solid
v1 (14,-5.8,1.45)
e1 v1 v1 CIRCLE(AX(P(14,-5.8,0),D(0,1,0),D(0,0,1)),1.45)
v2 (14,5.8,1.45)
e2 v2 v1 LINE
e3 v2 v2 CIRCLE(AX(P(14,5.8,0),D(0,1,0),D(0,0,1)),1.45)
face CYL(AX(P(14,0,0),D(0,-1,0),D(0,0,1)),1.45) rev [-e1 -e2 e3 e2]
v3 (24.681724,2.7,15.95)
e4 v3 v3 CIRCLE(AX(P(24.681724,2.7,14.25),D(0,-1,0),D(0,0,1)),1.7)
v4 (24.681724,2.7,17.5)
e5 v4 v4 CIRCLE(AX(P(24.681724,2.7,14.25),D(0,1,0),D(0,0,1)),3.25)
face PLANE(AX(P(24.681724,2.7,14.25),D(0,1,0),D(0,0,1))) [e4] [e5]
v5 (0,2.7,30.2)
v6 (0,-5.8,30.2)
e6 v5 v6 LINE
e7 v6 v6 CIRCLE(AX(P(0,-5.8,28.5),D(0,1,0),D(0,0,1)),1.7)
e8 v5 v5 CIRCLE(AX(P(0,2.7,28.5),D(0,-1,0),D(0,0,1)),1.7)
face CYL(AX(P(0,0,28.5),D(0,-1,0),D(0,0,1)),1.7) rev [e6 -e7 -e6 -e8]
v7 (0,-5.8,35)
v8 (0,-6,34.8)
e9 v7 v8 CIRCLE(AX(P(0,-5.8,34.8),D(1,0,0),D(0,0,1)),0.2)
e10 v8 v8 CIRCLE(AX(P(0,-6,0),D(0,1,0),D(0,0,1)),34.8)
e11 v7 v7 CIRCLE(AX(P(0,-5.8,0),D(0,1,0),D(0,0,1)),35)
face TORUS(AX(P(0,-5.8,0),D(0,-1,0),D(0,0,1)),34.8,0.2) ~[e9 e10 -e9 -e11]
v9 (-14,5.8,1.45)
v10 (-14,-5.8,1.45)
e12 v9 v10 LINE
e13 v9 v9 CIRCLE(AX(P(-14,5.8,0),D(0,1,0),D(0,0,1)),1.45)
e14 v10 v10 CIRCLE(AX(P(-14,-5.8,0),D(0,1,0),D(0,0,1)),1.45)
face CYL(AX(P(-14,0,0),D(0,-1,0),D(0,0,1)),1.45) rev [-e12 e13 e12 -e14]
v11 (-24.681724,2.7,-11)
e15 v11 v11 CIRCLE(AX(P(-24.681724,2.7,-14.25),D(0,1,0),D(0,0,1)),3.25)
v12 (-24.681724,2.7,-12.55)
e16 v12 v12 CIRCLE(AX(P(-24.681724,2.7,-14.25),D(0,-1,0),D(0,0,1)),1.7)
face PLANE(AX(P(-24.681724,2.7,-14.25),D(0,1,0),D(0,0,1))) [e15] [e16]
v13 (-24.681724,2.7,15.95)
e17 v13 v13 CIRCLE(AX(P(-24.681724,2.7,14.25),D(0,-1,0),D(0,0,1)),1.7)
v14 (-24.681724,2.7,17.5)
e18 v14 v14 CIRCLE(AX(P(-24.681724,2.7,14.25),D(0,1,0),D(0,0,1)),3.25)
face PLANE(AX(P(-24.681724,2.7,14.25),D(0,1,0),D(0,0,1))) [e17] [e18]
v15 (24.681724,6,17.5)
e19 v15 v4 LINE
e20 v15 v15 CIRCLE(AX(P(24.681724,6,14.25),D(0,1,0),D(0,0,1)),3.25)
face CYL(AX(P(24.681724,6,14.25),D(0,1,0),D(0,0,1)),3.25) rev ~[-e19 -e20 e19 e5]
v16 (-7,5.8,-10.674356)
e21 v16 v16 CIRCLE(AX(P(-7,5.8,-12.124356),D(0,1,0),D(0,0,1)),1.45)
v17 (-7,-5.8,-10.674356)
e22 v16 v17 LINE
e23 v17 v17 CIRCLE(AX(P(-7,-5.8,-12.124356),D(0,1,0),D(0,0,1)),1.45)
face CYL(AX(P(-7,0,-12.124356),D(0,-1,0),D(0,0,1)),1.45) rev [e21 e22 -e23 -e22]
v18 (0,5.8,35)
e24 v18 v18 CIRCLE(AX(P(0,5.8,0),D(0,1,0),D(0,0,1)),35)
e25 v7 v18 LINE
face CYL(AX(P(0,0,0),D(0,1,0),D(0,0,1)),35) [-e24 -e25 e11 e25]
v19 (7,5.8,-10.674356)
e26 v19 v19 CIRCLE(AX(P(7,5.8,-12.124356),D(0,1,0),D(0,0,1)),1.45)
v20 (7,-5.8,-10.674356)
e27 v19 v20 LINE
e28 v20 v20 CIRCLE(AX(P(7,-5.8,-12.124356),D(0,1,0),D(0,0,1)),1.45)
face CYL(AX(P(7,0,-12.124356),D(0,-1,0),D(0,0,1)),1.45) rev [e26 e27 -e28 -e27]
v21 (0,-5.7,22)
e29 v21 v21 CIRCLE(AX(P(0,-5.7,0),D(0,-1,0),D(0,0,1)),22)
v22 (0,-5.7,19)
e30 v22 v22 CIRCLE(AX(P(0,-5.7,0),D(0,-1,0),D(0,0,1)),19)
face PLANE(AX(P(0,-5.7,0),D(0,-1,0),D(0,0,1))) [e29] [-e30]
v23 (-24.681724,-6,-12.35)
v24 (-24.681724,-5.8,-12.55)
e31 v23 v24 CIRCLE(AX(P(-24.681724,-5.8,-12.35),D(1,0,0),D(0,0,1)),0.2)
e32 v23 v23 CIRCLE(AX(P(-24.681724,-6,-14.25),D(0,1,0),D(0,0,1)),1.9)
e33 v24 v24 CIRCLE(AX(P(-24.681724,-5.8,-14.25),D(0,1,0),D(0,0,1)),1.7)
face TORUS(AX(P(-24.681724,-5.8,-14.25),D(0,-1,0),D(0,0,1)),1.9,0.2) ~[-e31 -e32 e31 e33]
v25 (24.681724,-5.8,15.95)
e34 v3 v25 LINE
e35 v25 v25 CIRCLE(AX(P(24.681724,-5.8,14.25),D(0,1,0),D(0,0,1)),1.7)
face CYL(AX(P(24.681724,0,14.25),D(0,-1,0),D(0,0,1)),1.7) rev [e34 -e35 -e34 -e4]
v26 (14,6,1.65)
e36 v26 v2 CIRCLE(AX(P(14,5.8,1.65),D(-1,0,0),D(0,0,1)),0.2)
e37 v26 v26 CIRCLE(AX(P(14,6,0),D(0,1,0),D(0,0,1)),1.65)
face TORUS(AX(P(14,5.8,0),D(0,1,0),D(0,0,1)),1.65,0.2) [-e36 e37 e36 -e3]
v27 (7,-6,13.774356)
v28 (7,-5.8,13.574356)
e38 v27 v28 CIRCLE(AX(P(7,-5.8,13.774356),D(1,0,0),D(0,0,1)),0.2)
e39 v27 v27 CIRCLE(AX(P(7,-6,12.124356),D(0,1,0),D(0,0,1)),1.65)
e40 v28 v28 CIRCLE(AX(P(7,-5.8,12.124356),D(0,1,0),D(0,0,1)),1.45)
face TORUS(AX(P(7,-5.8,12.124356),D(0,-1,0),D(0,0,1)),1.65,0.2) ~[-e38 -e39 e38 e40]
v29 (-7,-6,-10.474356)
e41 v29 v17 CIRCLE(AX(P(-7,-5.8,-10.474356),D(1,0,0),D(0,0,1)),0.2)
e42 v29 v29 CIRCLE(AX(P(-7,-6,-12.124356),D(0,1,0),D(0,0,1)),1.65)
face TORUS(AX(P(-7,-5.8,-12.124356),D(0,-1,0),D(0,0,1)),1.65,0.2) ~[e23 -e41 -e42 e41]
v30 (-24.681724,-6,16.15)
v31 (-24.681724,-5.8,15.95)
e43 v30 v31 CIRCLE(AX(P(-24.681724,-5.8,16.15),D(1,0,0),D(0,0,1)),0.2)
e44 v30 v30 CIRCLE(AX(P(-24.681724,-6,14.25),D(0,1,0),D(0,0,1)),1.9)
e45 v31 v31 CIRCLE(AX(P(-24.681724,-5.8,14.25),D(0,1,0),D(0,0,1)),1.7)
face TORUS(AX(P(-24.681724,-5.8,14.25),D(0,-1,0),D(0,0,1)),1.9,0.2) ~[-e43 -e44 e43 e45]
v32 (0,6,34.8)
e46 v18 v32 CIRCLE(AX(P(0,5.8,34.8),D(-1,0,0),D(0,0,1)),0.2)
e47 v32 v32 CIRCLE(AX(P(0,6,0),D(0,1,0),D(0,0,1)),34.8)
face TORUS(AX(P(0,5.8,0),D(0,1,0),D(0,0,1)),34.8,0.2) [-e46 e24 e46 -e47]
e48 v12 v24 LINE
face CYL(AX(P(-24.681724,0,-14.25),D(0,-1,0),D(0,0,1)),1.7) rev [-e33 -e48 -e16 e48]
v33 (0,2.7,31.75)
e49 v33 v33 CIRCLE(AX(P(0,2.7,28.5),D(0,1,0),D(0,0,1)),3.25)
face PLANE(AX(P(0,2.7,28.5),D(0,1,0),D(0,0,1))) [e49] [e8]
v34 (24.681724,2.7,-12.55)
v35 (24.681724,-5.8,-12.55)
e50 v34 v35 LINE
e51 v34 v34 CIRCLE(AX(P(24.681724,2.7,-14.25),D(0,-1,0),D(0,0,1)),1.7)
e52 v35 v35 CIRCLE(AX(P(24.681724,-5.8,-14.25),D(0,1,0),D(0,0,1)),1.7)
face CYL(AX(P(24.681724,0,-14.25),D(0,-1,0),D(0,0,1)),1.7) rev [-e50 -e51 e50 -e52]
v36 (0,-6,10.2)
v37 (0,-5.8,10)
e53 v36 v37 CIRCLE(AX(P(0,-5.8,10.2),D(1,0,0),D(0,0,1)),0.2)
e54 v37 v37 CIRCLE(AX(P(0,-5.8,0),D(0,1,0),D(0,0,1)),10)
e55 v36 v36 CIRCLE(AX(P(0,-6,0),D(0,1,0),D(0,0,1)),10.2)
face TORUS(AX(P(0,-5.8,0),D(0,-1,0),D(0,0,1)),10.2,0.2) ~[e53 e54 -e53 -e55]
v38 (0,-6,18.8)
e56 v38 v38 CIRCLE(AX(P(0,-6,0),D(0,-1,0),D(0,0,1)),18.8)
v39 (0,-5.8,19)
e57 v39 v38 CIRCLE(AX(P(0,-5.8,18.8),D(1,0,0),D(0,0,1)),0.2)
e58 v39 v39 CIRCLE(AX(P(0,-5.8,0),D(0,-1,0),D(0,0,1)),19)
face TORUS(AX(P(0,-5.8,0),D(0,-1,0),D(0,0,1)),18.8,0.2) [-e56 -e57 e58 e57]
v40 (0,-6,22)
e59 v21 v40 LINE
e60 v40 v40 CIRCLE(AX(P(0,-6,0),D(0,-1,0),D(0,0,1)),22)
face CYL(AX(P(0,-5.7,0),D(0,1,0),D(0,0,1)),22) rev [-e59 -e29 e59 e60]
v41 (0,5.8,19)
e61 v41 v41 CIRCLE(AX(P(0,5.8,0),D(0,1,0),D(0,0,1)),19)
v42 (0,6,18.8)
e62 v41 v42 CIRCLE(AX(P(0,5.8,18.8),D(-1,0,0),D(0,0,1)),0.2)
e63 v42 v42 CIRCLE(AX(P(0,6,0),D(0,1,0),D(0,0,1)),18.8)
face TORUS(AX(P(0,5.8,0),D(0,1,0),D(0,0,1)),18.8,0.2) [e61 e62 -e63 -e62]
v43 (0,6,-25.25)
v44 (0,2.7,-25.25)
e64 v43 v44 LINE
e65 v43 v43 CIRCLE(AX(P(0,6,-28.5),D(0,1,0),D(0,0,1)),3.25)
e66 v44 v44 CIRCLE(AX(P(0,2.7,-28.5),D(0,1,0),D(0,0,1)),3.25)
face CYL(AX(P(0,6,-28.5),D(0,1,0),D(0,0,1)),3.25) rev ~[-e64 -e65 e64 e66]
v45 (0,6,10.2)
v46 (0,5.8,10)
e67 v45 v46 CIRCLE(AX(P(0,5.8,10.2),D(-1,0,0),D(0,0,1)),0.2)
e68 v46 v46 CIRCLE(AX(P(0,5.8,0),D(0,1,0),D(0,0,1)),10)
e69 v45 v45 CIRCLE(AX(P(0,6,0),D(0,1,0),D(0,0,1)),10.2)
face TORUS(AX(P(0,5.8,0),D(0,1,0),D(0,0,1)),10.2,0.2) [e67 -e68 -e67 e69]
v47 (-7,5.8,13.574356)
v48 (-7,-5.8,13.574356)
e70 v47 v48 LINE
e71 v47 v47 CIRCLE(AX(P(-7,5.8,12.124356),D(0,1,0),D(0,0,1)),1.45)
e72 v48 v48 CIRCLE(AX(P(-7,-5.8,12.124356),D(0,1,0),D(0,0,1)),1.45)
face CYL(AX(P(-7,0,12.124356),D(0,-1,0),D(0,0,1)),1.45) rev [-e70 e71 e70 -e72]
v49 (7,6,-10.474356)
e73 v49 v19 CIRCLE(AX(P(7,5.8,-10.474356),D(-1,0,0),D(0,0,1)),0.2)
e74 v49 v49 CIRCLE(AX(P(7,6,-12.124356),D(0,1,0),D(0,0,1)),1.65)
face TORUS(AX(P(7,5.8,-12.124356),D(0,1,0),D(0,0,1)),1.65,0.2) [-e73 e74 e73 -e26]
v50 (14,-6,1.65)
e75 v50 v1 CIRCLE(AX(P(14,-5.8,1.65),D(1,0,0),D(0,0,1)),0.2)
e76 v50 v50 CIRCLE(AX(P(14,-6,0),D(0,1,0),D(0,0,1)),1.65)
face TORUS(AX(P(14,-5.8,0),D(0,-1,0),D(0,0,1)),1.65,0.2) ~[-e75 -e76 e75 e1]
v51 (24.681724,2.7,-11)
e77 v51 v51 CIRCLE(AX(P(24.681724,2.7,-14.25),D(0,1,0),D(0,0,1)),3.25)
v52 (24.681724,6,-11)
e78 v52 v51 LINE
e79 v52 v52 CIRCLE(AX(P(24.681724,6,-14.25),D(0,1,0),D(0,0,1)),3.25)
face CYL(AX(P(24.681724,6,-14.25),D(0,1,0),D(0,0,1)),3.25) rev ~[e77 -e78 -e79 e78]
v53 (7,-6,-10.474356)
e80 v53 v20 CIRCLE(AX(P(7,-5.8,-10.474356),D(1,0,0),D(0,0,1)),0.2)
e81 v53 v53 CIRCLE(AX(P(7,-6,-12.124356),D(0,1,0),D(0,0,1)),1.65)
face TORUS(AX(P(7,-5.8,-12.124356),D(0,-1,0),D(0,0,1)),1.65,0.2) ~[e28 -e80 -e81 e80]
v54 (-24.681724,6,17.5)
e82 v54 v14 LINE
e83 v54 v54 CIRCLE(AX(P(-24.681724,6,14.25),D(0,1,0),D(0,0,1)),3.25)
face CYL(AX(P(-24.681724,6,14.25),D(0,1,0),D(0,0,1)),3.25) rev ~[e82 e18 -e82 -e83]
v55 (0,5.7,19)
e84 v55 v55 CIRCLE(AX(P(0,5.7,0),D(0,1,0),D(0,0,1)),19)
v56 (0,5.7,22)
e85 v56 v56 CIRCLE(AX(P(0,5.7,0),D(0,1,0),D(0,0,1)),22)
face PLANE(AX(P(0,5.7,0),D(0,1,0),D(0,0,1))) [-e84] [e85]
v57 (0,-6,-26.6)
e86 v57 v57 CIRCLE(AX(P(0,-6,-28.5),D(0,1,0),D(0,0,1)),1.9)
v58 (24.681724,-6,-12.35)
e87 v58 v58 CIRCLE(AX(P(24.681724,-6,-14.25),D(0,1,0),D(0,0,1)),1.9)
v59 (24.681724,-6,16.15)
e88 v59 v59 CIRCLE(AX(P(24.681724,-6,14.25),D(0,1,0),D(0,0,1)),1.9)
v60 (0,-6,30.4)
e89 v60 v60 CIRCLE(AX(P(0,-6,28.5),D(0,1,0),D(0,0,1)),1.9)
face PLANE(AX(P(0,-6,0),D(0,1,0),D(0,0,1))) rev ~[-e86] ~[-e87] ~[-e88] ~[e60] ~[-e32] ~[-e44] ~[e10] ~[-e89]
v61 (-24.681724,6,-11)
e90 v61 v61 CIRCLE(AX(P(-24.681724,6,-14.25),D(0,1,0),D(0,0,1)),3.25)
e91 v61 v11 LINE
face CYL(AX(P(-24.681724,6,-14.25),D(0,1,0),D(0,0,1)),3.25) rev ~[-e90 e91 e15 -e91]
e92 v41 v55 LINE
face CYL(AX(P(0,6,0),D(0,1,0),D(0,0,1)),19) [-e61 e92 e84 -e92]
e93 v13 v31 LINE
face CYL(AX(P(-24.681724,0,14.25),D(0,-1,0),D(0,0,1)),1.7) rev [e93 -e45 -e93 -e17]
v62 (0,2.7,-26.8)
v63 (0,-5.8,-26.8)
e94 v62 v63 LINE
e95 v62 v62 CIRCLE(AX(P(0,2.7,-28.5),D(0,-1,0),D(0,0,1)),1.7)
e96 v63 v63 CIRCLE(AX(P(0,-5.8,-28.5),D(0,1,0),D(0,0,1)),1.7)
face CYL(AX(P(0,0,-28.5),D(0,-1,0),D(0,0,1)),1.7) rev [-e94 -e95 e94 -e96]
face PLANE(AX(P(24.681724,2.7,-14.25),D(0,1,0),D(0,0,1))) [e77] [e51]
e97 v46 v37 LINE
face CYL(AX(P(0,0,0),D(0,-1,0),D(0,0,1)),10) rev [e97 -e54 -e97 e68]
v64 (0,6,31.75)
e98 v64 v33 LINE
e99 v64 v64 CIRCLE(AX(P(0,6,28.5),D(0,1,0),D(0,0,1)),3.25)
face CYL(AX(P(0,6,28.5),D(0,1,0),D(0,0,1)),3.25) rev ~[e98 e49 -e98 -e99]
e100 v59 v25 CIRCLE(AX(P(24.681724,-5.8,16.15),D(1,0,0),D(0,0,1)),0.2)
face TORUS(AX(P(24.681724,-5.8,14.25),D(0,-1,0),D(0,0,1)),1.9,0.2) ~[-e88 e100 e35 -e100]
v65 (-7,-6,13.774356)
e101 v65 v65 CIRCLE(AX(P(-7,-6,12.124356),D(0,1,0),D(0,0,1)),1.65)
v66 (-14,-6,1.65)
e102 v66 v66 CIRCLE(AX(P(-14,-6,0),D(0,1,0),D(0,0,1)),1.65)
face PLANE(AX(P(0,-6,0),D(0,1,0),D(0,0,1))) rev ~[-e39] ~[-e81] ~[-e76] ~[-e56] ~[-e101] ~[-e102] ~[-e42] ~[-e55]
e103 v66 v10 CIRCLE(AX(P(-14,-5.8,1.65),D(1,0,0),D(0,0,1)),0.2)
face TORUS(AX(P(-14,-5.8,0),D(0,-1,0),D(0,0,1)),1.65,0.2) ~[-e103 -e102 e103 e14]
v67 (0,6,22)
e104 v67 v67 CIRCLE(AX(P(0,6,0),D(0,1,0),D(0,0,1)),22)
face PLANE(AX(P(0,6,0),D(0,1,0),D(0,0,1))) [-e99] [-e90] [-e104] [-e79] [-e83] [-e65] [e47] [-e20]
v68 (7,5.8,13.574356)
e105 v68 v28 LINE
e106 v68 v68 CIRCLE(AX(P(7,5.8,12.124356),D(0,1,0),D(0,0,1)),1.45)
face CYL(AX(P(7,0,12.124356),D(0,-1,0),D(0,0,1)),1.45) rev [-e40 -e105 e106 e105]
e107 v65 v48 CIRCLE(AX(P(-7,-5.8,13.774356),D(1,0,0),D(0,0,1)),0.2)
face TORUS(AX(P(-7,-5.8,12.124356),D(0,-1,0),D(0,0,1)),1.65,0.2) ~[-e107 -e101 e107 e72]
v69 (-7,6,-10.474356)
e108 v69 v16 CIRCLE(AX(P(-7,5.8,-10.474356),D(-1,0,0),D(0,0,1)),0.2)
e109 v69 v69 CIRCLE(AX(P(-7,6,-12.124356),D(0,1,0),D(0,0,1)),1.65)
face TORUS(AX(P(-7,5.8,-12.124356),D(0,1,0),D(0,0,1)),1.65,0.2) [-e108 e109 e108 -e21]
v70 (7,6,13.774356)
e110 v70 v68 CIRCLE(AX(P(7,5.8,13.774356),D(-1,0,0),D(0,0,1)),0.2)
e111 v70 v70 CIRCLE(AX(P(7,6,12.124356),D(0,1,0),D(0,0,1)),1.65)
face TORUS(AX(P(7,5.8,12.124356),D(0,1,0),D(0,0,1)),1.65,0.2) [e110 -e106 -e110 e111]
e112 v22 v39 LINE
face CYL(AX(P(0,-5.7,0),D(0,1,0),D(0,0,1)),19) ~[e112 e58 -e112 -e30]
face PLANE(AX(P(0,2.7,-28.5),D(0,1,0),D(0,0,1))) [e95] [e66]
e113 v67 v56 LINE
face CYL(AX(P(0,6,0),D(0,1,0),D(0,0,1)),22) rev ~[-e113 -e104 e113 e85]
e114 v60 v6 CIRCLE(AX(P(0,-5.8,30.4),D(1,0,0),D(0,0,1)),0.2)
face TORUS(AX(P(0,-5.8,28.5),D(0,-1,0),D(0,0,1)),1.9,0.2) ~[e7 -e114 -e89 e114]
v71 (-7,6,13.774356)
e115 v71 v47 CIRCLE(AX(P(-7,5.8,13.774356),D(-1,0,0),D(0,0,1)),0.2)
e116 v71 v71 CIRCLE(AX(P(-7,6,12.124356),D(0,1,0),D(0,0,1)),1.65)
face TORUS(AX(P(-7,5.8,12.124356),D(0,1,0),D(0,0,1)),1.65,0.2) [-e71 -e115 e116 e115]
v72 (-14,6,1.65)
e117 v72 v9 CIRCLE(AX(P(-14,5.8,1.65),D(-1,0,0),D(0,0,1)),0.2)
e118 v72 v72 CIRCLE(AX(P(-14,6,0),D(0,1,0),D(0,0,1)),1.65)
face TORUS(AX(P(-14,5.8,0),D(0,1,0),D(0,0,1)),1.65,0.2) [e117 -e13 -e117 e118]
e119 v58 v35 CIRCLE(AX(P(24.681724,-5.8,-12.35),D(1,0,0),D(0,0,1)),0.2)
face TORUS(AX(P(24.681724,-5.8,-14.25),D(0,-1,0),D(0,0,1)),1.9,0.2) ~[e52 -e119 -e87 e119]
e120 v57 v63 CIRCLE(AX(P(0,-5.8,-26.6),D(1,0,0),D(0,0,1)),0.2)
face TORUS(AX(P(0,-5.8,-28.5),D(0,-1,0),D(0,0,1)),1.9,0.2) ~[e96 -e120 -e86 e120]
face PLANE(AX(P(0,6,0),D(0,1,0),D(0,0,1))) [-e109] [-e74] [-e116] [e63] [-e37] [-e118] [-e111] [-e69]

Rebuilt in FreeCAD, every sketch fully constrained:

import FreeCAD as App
import Part
import Sketcher
from FreeCAD import Vector


def edges_at(feature, points):
    """Names of the edges that pass closest to the given points."""
    edges = feature.Shape.Edges
    near = lambda p: min(range(len(edges)), key=lambda i: edges[i].distToShape(Part.Vertex(*p))[0])
    return sorted({f"Edge{near(p) + 1}" for p in points})

doc = App.newDocument("Part")
body = doc.addObject("PartDesign::Body", "Body")

# Sketch on XZ plane
sketch1 = body.newObject("Sketcher::SketchObject", "Sketch")
sketch1.AttachmentSupport = (doc.getObject("XZ_Plane"), [""])
sketch1.MapMode = "FlatFace"
sketch1.addGeometry(Part.Circle(Vector(0, 0, 0), Vector(0, 0, 1), 35), False)
sketch1.addGeometry(Part.Circle(Vector(-24.7, -14.2, 0), Vector(0, 0, 1), 1.7), False)
sketch1.addGeometry(Part.Circle(Vector(0, -28.5, 0), Vector(0, 0, 1), 1.7), False)
sketch1.addGeometry(Part.Circle(Vector(-7, -12.1, 0), Vector(0, 0, 1), 1.4), False)
sketch1.addGeometry(Part.Circle(Vector(-24.7, 14.2, 0), Vector(0, 0, 1), 1.7), False)
sketch1.addGeometry(Part.Circle(Vector(-14, 0, 0), Vector(0, 0, 1), 1.4), False)
sketch1.addGeometry(Part.Circle(Vector(-7, 12.1, 0), Vector(0, 0, 1), 1.4), False)
sketch1.addGeometry(Part.Circle(Vector(7, -12.1, 0), Vector(0, 0, 1), 1.4), False)
sketch1.addGeometry(Part.Circle(Vector(14, 0, 0), Vector(0, 0, 1), 1.4), False)
sketch1.addGeometry(Part.Circle(Vector(24.7, -14.2, 0), Vector(0, 0, 1), 1.7), False)
sketch1.addGeometry(Part.Circle(Vector(0, 0, 0), Vector(0, 0, 1), 10), False)
sketch1.addGeometry(Part.Circle(Vector(7, 12.1, 0), Vector(0, 0, 1), 1.4), False)
sketch1.addGeometry(Part.Circle(Vector(0, 28.5, 0), Vector(0, 0, 1), 1.7), False)
sketch1.addGeometry(Part.Circle(Vector(24.7, 14.2, 0), Vector(0, 0, 1), 1.7), False)
sketch1.addConstraint(Sketcher.Constraint("Coincident", 0, 3, -1, 1))
sketch1.addConstraint(Sketcher.Constraint("Coincident", 10, 3, -1, 1))
sketch1.addConstraint(Sketcher.Constraint("Equal", 1, 2))
sketch1.addConstraint(Sketcher.Constraint("Equal", 2, 4))
sketch1.addConstraint(Sketcher.Constraint("Equal", 3, 5))
sketch1.addConstraint(Sketcher.Constraint("Equal", 5, 6))
sketch1.addConstraint(Sketcher.Constraint("Equal", 6, 7))
sketch1.addConstraint(Sketcher.Constraint("Equal", 7, 8))
sketch1.addConstraint(Sketcher.Constraint("Equal", 4, 9))
sketch1.addConstraint(Sketcher.Constraint("Equal", 8, 11))
sketch1.addConstraint(Sketcher.Constraint("Equal", 9, 12))
sketch1.addConstraint(Sketcher.Constraint("Equal", 12, 13))
sketch1.addConstraint(Sketcher.Constraint("Symmetric", 6, 3, 7, 3, -1, 1))
sketch1.addConstraint(Sketcher.Constraint("Symmetric", 5, 3, 8, 3, -1, 1))
sketch1.addConstraint(Sketcher.Constraint("Symmetric", 4, 3, 9, 3, -1, 1))
sketch1.addConstraint(Sketcher.Constraint("Symmetric", 3, 3, 11, 3, -1, 1))
sketch1.addConstraint(Sketcher.Constraint("Symmetric", 2, 3, 12, 3, -1, 1))
sketch1.addConstraint(Sketcher.Constraint("Symmetric", 1, 3, 13, 3, -1, 1))
sketch1.addConstraint(Sketcher.Constraint("Symmetric", 3, 3, 7, 3, -2))
sketch1.addConstraint(Sketcher.Constraint("Symmetric", 1, 3, 9, 3, -2))
sketch1.addConstraint(Sketcher.Constraint("PointOnObject", 2, 3, -2))
sketch1.addConstraint(Sketcher.Constraint("PointOnObject", 5, 3, -1))
sketch1.addConstraint(Sketcher.Constraint("Diameter", 0, 70.0))
sketch1.addConstraint(Sketcher.Constraint("Diameter", 10, 20.0))
sketch1.addConstraint(Sketcher.Constraint("Diameter", 1, 3.4))
sketch1.addConstraint(Sketcher.Constraint("Diameter", 3, 2.9))
sketch1.addConstraint(Sketcher.Constraint("DistanceX", 3, 3, -1, 1, 7.0))
sketch1.addConstraint(Sketcher.Constraint("DistanceX", 5, 3, -1, 1, 14.0))
sketch1.addConstraint(Sketcher.Constraint("DistanceY", 2, 3, -1, 1, 28.5))
sketch1.addConstraint(Sketcher.Constraint("DistanceY", 1, 3, 4, 3, 28.5))
sketch1.addConstraint(Sketcher.Constraint("DistanceY", 3, 3, 6, 3, 24.248711))
sketch1.addConstraint(Sketcher.Constraint("DistanceX", 1, 3, -1, 1, 24.681724))
pad1 = body.newObject("PartDesign::Pad", "Pad")
pad1.Profile = sketch1
pad1.Length = 12
pad1.Midplane = True

# Sketch on XZ plane
sketch2 = body.newObject("Sketcher::SketchObject", "Sketch001")
sketch2.AttachmentSupport = (doc.getObject("XZ_Plane"), [""])
sketch2.MapMode = "FlatFace"
sketch2.AttachmentOffset = App.Placement(Vector(0, 0, -6), App.Rotation())
sketch2.addGeometry(Part.Circle(Vector(0, 0, 0), Vector(0, 0, 1), 22), False)
sketch2.addGeometry(Part.Circle(Vector(0, 0, 0), Vector(0, 0, 1), 19), False)
sketch2.addConstraint(Sketcher.Constraint("Coincident", 0, 3, -1, 1))
sketch2.addConstraint(Sketcher.Constraint("Coincident", 1, 3, -1, 1))
sketch2.addConstraint(Sketcher.Constraint("Diameter", 0, 44.0))
sketch2.addConstraint(Sketcher.Constraint("Diameter", 1, 38.0))
pocket1 = body.newObject("PartDesign::Pocket", "Pocket")
pocket1.Profile = sketch2
pocket1.Length = 0.3
pocket1.Reversed = True

# Sketch on XZ plane
sketch3 = body.newObject("Sketcher::SketchObject", "Sketch002")
sketch3.AttachmentSupport = (doc.getObject("XZ_Plane"), [""])
sketch3.MapMode = "FlatFace"
sketch3.AttachmentOffset = App.Placement(Vector(0, 0, 5.7), App.Rotation())
sketch3.addGeometry(Part.Circle(Vector(0, 0, 0), Vector(0, 0, 1), 22), False)
sketch3.addGeometry(Part.Circle(Vector(0, 0, 0), Vector(0, 0, 1), 19), False)
sketch3.addConstraint(Sketcher.Constraint("Coincident", 0, 3, -1, 1))
sketch3.addConstraint(Sketcher.Constraint("Coincident", 1, 3, -1, 1))
sketch3.addConstraint(Sketcher.Constraint("Diameter", 0, 44.0))
sketch3.addConstraint(Sketcher.Constraint("Diameter", 1, 38.0))
pocket2 = body.newObject("PartDesign::Pocket", "Pocket001")
pocket2.Profile = sketch3
pocket2.Length = 0.3
pocket2.Reversed = True
doc.recompute()

fillet = body.newObject("PartDesign::Fillet", "Fillet")
fillet.Base = (pocket2, edges_at(pocket2, [
    (7, -6, -13.574),
    (7, 6, -13.574),
    (14, -6, -1.45),
    (14, 6, -1.45),
    (0, -6, -35),
    (7, -6, 10.674),
    (7, 6, 10.674),
    (-7, -6, 10.674),
    (-7, 6, 10.674),
    (-14, -6, -1.45),
    (-14, 6, -1.45),
    (24.682, -6, -15.95),
    (0, -6, -30.2),
    (24.682, -6, 12.55),
    (0, -6, 26.8),
    (-24.682, -6, 12.55),
    (0, 6, -35),
    (-24.682, -6, -15.95),
    (0, -6, -10),
    (0, 6, -10),
    (0, 6, -19),
    (0, -6, -19),
    (-7, -6, -13.574),
    (-7, 6, -13.574),
]))
fillet.Radius = 0.2

# Sketch on XZ plane
sketch4 = body.newObject("Sketcher::SketchObject", "Sketch003")
sketch4.AttachmentSupport = (doc.getObject("XZ_Plane"), [""])
sketch4.MapMode = "FlatFace"
sketch4.AttachmentOffset = App.Placement(Vector(0, 0, -6), App.Rotation())
sketch4.addGeometry(Part.Circle(Vector(0, -28.5, 0), Vector(0, 0, 1), 3.2), False)
sketch4.addGeometry(Part.Circle(Vector(24.7, -14.2, 0), Vector(0, 0, 1), 3.2), False)
sketch4.addGeometry(Part.Circle(Vector(24.7, 14.2, 0), Vector(0, 0, 1), 3.2), False)
sketch4.addGeometry(Part.Circle(Vector(0, 28.5, 0), Vector(0, 0, 1), 3.2), False)
sketch4.addGeometry(Part.Circle(Vector(-24.7, 14.2, 0), Vector(0, 0, 1), 3.2), False)
sketch4.addGeometry(Part.Circle(Vector(-24.7, -14.2, 0), Vector(0, 0, 1), 3.2), False)
sketch4.addConstraint(Sketcher.Constraint("Equal", 0, 1))
sketch4.addConstraint(Sketcher.Constraint("Equal", 1, 2))
sketch4.addConstraint(Sketcher.Constraint("Equal", 2, 3))
sketch4.addConstraint(Sketcher.Constraint("Equal", 3, 4))
sketch4.addConstraint(Sketcher.Constraint("Equal", 4, 5))
sketch4.addConstraint(Sketcher.Constraint("Symmetric", 0, 3, 3, 3, -1, 1))
sketch4.addConstraint(Sketcher.Constraint("Symmetric", 1, 3, 4, 3, -1, 1))
sketch4.addConstraint(Sketcher.Constraint("Symmetric", 2, 3, 5, 3, -1, 1))
sketch4.addConstraint(Sketcher.Constraint("Symmetric", 2, 3, 4, 3, -2))
sketch4.addConstraint(Sketcher.Constraint("PointOnObject", 0, 3, -2))
sketch4.addConstraint(Sketcher.Constraint("Diameter", 0, 6.5))
sketch4.addConstraint(Sketcher.Constraint("DistanceY", 0, 3, 3, 3, 57.0))
sketch4.addConstraint(Sketcher.Constraint("DistanceY", 1, 3, 2, 3, 28.5))
sketch4.addConstraint(Sketcher.Constraint("DistanceX", 4, 3, 2, 3, 49.363448))
pocket3 = body.newObject("PartDesign::Pocket", "Pocket002")
pocket3.Profile = sketch4
pocket3.Length = 3.3
pocket3.Reversed = True

doc.recompute()
